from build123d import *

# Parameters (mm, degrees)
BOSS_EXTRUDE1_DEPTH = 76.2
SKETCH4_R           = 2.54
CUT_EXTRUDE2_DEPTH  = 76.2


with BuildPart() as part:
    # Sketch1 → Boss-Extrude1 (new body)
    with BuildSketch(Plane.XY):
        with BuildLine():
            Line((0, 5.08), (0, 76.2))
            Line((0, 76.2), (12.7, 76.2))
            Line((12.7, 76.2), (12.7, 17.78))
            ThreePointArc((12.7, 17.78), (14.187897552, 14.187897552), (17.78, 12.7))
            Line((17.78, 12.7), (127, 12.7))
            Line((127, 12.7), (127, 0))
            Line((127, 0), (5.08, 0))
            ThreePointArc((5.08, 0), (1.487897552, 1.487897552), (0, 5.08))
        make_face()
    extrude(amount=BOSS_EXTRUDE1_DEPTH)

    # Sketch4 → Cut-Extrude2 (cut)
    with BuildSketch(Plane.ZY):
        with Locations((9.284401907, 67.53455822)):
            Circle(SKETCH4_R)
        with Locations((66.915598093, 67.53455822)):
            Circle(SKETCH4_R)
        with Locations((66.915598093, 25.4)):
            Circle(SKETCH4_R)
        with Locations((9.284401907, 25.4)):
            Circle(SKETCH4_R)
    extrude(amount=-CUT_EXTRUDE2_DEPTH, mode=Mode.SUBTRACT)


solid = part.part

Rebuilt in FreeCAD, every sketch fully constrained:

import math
import FreeCAD as App
import Part
import Sketcher
from FreeCAD import Vector
Q = App.Units.Quantity

doc = App.newDocument("Part")
body = doc.addObject("PartDesign::Body", "Body")

# Sketch on XY plane
sketch1 = body.newObject("Sketcher::SketchObject", "Sketch")
sketch1.AttachmentSupport = (doc.getObject("XY_Plane"), [""])
sketch1.MapMode = "FlatFace"
sketch1.addGeometry([
    Part.LineSegment(Vector(0, 76, 0), Vector(0, 5, 0)),  # 0
    Part.ArcOfCircle(Part.Circle(Vector(5, 5, 0), Vector(0, 0, 1), 5), math.radians(-180), math.radians(-90)),  # 1
    Part.LineSegment(Vector(5, 0, 0), Vector(127, 0, 0)),  # 2
    Part.LineSegment(Vector(127, 0, 0), Vector(127, 13, 0)),  # 3
    Part.LineSegment(Vector(127, 13, 0), Vector(18, 13, 0)),  # 4
    Part.ArcOfCircle(Part.Circle(Vector(18, 18, 0), Vector(0, 0, 1), 5), math.radians(-180), math.radians(-90)),  # 5
    Part.LineSegment(Vector(13, 18, 0), Vector(13, 76, 0)),  # 6
    Part.LineSegment(Vector(13, 76, 0), Vector(0, 76, 0)),  # 7
], False)
sketch1.addConstraint([
    Sketcher.Constraint("Tangent", 0, 2, 1, 1),
    Sketcher.Constraint("Tangent", 1, 2, 2, 1),
    Sketcher.Constraint("Coincident", 2, 2, 3, 1),
    Sketcher.Constraint("Coincident", 3, 2, 4, 1),
    Sketcher.Constraint("Tangent", 4, 2, 5, 2),
    Sketcher.Constraint("Tangent", 5, 1, 6, 1),
    Sketcher.Constraint("Coincident", 6, 2, 7, 1),
    Sketcher.Constraint("Coincident", 7, 2, 0, 1),
    Sketcher.Constraint("Vertical", 0),
    Sketcher.Constraint("Horizontal", 2),
    Sketcher.Constraint("Vertical", 3),
    Sketcher.Constraint("Horizontal", 4),
    Sketcher.Constraint("Vertical", 6),
    Sketcher.Constraint("Horizontal", 7),
    Sketcher.Constraint("Equal", 1, 5),
    Sketcher.Constraint("PointOnObject", 0, 2, -2),
    Sketcher.Constraint("PointOnObject", 1, 2, -1),
    Sketcher.Constraint("Equal", 7, 3),
    Sketcher.Constraint("Radius", 1, Q("0.2 in")),
    Sketcher.Constraint("DistanceX", 2, 1, 2, 2, Q("4.8 in")),
    Sketcher.Constraint("DistanceX", 4, 2, 4, 1, Q("4.3 in")),
    Sketcher.Constraint("DistanceY", 0, 2, 0, 1, Q("2.8 in")),
])
pad1 = body.newObject("PartDesign::Pad", "Pad")
pad1.Profile = sketch1
pad1.Length = Q("3 in")

# Sketch on YZ plane
sketch2 = body.newObject("Sketcher::SketchObject", "Sketch001")
sketch2.AttachmentSupport = (doc.getObject("YZ_Plane"), [""])
sketch2.MapMode = "FlatFace"
sketch2.addGeometry([
    Part.Circle(Vector(67.5, 9.3, 0), Vector(0, 0, 1), 2.5),
    Part.Circle(Vector(67.5, 66.9, 0), Vector(0, 0, 1), 2.5),
    Part.Circle(Vector(25.4, 66.9, 0), Vector(0, 0, 1), 2.5),
    Part.Circle(Vector(25.4, 9.3, 0), Vector(0, 0, 1), 2.5),
], False)
sketch2.addConstraint([
    Sketcher.Constraint("Equal", 0, 1),
    Sketcher.Constraint("Equal", 1, 2),
    Sketcher.Constraint("Equal", 2, 3),
    Sketcher.Constraint("Horizontal", 1, 3, 2, 3),
    Sketcher.Constraint("Horizontal", 0, 3, 3, 3),
    Sketcher.Constraint("Vertical", 0, 3, 1, 3),
    Sketcher.Constraint("Vertical", 2, 3, 3, 3),
    Sketcher.Constraint("Diameter", 0, Q("0.2 in")),
    Sketcher.Constraint("DistanceX", -1, 1, 2, 3, Q("1 in")),
    Sketcher.Constraint("DistanceY", -1, 1, 0, 3, 9.284402),
    Sketcher.Constraint("DistanceY", -1, 1, 1, 3, 66.915598),
    Sketcher.Constraint("DistanceX", -1, 1, 0, 3, 67.534558),
])
pocket1 = body.newObject("PartDesign::Pocket", "Pocket")
pocket1.Profile = sketch2
pocket1.Length = Q("3 in")
pocket1.Reversed = True

doc.recompute()
